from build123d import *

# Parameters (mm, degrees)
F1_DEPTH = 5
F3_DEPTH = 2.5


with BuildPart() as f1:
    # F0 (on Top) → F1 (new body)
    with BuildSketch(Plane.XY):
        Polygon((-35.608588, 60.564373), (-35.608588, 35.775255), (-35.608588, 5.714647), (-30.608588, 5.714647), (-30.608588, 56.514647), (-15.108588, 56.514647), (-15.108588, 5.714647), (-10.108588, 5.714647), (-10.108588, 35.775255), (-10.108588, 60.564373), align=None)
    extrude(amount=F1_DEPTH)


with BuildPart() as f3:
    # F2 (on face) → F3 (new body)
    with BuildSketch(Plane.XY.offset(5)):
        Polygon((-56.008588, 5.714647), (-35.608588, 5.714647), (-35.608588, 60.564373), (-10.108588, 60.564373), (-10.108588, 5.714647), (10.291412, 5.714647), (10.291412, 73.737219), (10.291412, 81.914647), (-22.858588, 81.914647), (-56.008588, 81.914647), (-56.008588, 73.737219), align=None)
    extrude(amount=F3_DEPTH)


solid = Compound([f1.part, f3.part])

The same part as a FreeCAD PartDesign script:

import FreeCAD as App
import Part
import Sketcher

V = App.Vector


def add_polygon(sketch, points):
    """Adds a closed chain of lines whose ends are joined by coincident constraints."""
    first, n = sketch.GeometryCount, len(points)
    for a, b in zip(points, points[1:] + points[:1]):
        sketch.addGeometry(Part.LineSegment(App.Vector(*a, 0), App.Vector(*b, 0)), False)
    for i in range(n):
        sketch.addConstraint(Sketcher.Constraint("Coincident", first + i, 2, first + (i + 1) % n, 1))

doc = App.newDocument("Part")
params = doc.addObject("Spreadsheet::Sheet", "Params")
for row, (alias, value) in enumerate([
    ("sketch1_width", "5 mm"),
    ("sketch1_width2", "15.5 mm"),
    ("sketch1_height", "50.8 mm"),
    ("pad1_length", "5 mm"),
    ("sketch2_width", "20.4 mm"),
    ("sketch2_width2", "25.5 mm"),
    ("sketch2_height", "76.2 mm"),
    ("pad2_length", "2.5 mm"),
], start=1):
    params.set(f"A{row}", alias)
    params.set(f"B{row}", "=" + value)
    params.setAlias(f"B{row}", alias)

body = doc.addObject("PartDesign::Body", "Body")

sketch1 = body.newObject("Sketcher::SketchObject", "Sketch")
sketch1.AttachmentSupport = (doc.getObject("XY_Plane"), [""])
sketch1.MapMode = "FlatFace"
add_polygon(sketch1, [(-35.6, 60.6), (-35.6, 5.7), (-30.6, 5.7), (-30.6, 56.5), (-15.1, 56.5), (-15.1, 5.7), (-10.1, 5.7), (-10.1, 60.6)])
sketch1.addConstraint(Sketcher.Constraint("Vertical", 0))
sketch1.addConstraint(Sketcher.Constraint("Horizontal", 1))
sketch1.addConstraint(Sketcher.Constraint("Vertical", 2))
sketch1.addConstraint(Sketcher.Constraint("Horizontal", 3))
sketch1.addConstraint(Sketcher.Constraint("Vertical", 4))
sketch1.addConstraint(Sketcher.Constraint("Horizontal", 5))
sketch1.addConstraint(Sketcher.Constraint("Vertical", 6))
sketch1.addConstraint(Sketcher.Constraint("Horizontal", 7))
sketch1.addConstraint(Sketcher.Constraint("Horizontal", 1, 2, 4, 2))
sketch1.addConstraint(Sketcher.Constraint("Equal", 1, 5))
sketch1.addConstraint(Sketcher.Constraint("DistanceX", 1, 1, 1, 2, 5.0))
sketch1.addConstraint(Sketcher.Constraint("DistanceX", 3, 1, 3, 2, 15.5))
sketch1.addConstraint(Sketcher.Constraint("DistanceY", 2, 1, 2, 2, 50.8))
sketch1.addConstraint(Sketcher.Constraint("DistanceY", 0, 2, 0, 1, 54.849726))
sketch1.addConstraint(Sketcher.Constraint("DistanceX", 1, 2, -1, 1, 30.608588))
sketch1.addConstraint(Sketcher.Constraint("DistanceY", -1, 1, 0, 2, 5.714647))
sketch1.setExpression("Constraints[18]", "Params.sketch1_width")
sketch1.setExpression("Constraints[19]", "Params.sketch1_width2")
sketch1.setExpression("Constraints[20]", "Params.sketch1_height")
pad1 = body.newObject("PartDesign::Pad", "Pad")
pad1.Profile = sketch1
pad1.setExpression("Length", "Params.pad1_length")
body2 = doc.addObject("PartDesign::Body", "Body001")

sketch2 = body2.newObject("Sketcher::SketchObject", "Sketch001")
sketch2.AttachmentSupport = (doc.getObject("XY_Plane001"), [""])
sketch2.MapMode = "FlatFace"
sketch2.AttachmentOffset = App.Placement(V(0, 0, 5), App.Rotation())
add_polygon(sketch2, [(-56, 6), (-36, 6), (-36, 61), (-10, 61), (-10, 6), (10, 6), (10, 82), (-56, 82)])
sketch2.addConstraint(Sketcher.Constraint("Horizontal", 0))
sketch2.addConstraint(Sketcher.Constraint("Vertical", 1))
sketch2.addConstraint(Sketcher.Constraint("Horizontal", 2))
sketch2.addConstraint(Sketcher.Constraint("Vertical", 3))
sketch2.addConstraint(Sketcher.Constraint("Horizontal", 4))
sketch2.addConstraint(Sketcher.Constraint("Vertical", 5))
sketch2.addConstraint(Sketcher.Constraint("Horizontal", 6))
sketch2.addConstraint(Sketcher.Constraint("Vertical", 7))
sketch2.addConstraint(Sketcher.Constraint("Horizontal", 0, 2, 3, 2))
sketch2.addConstraint(Sketcher.Constraint("Equal", 0, 4))
sketch2.addConstraint(Sketcher.Constraint("DistanceX", 0, 1, 0, 2, 20.4))
sketch2.addConstraint(Sketcher.Constraint("DistanceX", 2, 1, 2, 2, 25.5))
sketch2.addConstraint(Sketcher.Constraint("DistanceY", 5, 1, 5, 2, 76.2))
sketch2.addConstraint(Sketcher.Constraint("DistanceY", 1, 1, 1, 2, 54.849726))
sketch2.addConstraint(Sketcher.Constraint("DistanceX", -1, 1, 4, 2, 10.291412))
sketch2.addConstraint(Sketcher.Constraint("DistanceY", -1, 1, 0, 2, 5.714647))
sketch2.setExpression("Constraints[18]", "Params.sketch2_width")
sketch2.setExpression("Constraints[19]", "Params.sketch2_width2")
sketch2.setExpression("Constraints[20]", "Params.sketch2_height")
pad2 = body2.newObject("PartDesign::Pad", "Pad001")
pad2.Profile = sketch2
pad2.setExpression("Length", "Params.pad2_length")

doc.recompute()
